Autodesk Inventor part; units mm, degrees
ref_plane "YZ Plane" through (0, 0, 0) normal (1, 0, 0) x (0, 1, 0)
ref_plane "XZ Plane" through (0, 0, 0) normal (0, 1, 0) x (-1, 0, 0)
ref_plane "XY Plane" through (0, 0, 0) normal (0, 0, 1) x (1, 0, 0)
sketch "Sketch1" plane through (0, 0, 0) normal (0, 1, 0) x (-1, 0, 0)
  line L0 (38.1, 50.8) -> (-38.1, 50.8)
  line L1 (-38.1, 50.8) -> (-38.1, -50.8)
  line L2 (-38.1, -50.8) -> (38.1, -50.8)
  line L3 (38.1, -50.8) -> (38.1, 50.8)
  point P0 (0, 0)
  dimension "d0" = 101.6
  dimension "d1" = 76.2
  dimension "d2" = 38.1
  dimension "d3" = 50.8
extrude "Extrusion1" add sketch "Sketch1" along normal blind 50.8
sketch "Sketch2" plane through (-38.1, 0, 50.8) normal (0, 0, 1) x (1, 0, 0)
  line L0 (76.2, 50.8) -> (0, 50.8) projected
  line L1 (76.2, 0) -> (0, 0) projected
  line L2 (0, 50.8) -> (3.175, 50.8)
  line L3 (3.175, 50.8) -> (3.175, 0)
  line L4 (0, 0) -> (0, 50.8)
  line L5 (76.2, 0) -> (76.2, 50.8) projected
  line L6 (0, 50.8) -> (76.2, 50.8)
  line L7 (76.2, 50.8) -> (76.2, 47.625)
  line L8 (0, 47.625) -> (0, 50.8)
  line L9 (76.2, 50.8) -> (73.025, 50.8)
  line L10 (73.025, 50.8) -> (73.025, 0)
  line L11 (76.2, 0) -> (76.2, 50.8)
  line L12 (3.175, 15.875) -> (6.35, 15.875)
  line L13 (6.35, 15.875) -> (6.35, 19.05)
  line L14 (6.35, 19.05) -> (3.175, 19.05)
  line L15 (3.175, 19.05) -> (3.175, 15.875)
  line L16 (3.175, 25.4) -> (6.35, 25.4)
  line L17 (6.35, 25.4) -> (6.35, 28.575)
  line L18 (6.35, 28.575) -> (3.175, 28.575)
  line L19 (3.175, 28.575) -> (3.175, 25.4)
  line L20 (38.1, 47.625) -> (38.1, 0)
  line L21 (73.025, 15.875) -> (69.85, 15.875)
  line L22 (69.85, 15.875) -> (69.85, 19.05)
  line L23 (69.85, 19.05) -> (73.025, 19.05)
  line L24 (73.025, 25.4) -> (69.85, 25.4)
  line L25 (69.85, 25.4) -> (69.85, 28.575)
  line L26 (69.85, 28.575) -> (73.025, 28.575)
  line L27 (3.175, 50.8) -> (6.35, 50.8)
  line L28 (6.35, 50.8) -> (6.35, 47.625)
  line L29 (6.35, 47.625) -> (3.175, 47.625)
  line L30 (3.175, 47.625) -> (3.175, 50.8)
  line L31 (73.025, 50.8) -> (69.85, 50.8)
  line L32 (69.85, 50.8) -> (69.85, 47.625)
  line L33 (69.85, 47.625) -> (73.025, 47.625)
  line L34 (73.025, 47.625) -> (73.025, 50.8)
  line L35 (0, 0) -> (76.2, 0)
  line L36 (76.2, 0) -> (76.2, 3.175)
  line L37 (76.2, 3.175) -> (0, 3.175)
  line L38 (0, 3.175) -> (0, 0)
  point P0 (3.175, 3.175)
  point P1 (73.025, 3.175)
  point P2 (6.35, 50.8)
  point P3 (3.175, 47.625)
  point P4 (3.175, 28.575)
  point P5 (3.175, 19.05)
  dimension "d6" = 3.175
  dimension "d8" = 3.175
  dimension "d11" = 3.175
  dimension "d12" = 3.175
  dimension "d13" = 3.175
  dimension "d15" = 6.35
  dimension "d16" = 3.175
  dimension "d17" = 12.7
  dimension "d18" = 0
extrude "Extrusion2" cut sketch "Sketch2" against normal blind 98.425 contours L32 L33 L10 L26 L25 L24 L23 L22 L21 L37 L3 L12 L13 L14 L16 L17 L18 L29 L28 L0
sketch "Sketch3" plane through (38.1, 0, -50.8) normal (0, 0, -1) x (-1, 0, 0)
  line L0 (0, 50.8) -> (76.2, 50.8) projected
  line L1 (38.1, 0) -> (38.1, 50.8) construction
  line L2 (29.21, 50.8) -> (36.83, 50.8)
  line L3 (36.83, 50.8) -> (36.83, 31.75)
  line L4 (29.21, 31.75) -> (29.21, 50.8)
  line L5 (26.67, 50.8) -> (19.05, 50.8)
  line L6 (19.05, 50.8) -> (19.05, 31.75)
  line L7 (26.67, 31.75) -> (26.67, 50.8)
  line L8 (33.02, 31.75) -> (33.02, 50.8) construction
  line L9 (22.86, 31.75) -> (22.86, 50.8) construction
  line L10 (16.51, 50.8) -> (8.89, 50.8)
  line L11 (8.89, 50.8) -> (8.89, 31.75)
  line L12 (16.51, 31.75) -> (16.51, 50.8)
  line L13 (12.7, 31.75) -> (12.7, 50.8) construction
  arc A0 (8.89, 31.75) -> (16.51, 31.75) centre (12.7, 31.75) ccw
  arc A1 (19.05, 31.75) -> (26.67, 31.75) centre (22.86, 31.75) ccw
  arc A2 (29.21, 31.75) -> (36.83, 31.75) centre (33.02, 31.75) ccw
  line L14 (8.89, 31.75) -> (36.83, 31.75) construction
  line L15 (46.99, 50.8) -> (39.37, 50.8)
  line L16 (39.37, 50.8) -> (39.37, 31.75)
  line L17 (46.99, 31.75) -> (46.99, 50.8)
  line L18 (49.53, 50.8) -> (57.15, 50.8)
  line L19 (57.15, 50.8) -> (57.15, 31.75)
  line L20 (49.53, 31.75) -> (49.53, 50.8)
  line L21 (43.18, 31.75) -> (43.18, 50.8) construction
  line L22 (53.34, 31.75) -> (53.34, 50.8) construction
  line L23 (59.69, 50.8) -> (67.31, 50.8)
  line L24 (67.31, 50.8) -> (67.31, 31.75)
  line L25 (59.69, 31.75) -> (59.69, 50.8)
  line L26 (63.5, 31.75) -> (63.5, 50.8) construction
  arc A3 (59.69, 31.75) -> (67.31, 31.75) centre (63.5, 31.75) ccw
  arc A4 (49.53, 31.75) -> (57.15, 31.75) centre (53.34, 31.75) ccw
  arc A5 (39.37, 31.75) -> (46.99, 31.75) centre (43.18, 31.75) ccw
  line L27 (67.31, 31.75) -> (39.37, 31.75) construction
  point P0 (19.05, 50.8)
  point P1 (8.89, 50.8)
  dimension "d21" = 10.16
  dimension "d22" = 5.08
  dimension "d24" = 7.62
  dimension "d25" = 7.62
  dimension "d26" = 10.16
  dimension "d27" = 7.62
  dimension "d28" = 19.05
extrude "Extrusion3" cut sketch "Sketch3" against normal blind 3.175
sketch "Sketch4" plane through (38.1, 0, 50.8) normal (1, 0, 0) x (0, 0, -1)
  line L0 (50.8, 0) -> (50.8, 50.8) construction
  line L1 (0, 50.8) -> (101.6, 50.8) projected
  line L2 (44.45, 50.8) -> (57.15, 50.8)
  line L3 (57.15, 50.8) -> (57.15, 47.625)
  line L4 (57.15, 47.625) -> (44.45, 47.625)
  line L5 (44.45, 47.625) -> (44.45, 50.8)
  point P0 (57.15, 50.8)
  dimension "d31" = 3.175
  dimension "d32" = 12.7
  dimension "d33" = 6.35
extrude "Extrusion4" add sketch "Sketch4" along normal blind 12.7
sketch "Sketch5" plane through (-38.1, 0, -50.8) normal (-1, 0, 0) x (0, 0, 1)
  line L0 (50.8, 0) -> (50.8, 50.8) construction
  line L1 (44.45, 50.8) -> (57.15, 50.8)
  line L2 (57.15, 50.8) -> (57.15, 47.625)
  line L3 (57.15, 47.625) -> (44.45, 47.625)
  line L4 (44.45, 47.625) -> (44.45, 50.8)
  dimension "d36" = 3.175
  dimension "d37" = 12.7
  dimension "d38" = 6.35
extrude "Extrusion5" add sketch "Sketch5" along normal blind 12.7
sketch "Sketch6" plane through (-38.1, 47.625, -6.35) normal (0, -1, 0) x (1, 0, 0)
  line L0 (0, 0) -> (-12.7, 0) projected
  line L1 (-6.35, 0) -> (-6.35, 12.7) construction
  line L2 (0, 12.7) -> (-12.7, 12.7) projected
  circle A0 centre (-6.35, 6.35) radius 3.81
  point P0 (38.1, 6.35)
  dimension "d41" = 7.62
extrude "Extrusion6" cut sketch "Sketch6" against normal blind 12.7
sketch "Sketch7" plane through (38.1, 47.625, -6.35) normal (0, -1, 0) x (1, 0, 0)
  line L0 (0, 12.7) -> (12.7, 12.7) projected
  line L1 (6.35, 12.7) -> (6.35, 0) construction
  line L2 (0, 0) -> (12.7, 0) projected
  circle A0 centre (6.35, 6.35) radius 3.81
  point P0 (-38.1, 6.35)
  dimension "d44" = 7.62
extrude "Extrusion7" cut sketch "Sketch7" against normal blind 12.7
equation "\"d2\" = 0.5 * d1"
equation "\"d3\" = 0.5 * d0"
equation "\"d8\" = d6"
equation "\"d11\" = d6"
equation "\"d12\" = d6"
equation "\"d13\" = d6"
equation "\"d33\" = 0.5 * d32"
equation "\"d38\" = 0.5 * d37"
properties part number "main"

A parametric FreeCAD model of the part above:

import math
import FreeCAD as App
import Part
import Sketcher

V = App.Vector
Q = App.Units.Quantity


def add_polygon(sketch, points):
    """Adds a closed chain of lines whose ends are joined by coincident constraints."""
    first, n = sketch.GeometryCount, len(points)
    for a, b in zip(points, points[1:] + points[:1]):
        sketch.addGeometry(Part.LineSegment(App.Vector(*a, 0), App.Vector(*b, 0)), False)
    for i in range(n):
        sketch.addConstraint(Sketcher.Constraint("Coincident", first + i, 2, first + (i + 1) % n, 1))

doc = App.newDocument("Part")
params = doc.addObject("Spreadsheet::Sheet", "Params")
for row, (alias, value) in enumerate([
    ("sketch1_width", "3 in"),
    ("sketch1_height", "4 in"),
    ("pad1_length", "2 in"),
    ("sketch2_height", "0.5 in"),
    ("sketch2_height2", "0.25 in"),
    ("sketch2_width", "2.5 in"),
    ("pocket1_length", "3.875 in"),
    ("sketch3_radius", "0.15 in"),
    ("sketch3_height", "0.75 in"),
    ("pocket2_length", "0.125 in"),
    ("sketch4_height", "0.5 in"),
    ("sketch4_width", "0.125 in"),
    ("pad2_length", "0.5 in"),
    ("sketch5_height", "0.5 in"),
    ("sketch5_width", "0.125 in"),
    ("pad3_length", "0.5 in"),
    ("sketch6_diameter", "0.3 in"),
    ("pocket3_length", "0.5 in"),
    ("sketch7_diameter", "0.3 in"),
    ("pocket4_length", "0.5 in"),
], start=1):
    params.set(f"A{row}", alias)
    params.set(f"B{row}", "=" + value)
    params.setAlias(f"B{row}", alias)

body = doc.addObject("PartDesign::Body", "Body")

sketch1 = body.newObject("Sketcher::SketchObject", "Sketch")
sketch1.AttachmentSupport = (doc.getObject("XZ_Plane"), [""])
sketch1.MapMode = "FlatFace"
add_polygon(sketch1, [(-38, -51), (-38, 51), (38, 51), (38, -51)])
sketch1.addConstraint(Sketcher.Constraint("Vertical", 0))
sketch1.addConstraint(Sketcher.Constraint("Horizontal", 1))
sketch1.addConstraint(Sketcher.Constraint("Vertical", 2))
sketch1.addConstraint(Sketcher.Constraint("Horizontal", 3))
sketch1.addConstraint(Sketcher.Constraint("Symmetric", 0, 2, 2, 2, -1, 1))
sketch1.addConstraint(Sketcher.Constraint("DistanceX", 1, 1, 1, 2, Q("3 in")))
sketch1.addConstraint(Sketcher.Constraint("DistanceY", 0, 1, 0, 2, Q("4 in")))
sketch1.setExpression("Constraints[9]", "Params.sketch1_width")
sketch1.setExpression("Constraints[10]", "Params.sketch1_height")
pad1 = body.newObject("PartDesign::Pad", "Pad")
pad1.Profile = sketch1
pad1.setExpression("Length", "Params.pad1_length")
pad1.Reversed = True

sketch2 = body.newObject("Sketcher::SketchObject", "Sketch001")
sketch2.AttachmentSupport = (doc.getObject("XY_Plane"), [""])
sketch2.MapMode = "FlatFace"
sketch2.AttachmentOffset = App.Placement(V(0, 0, 2 * 25.4), App.Rotation())
add_polygon(sketch2, [(31.8, 47.6), (31.8, 50.8), (-31.8, 50.8), (-31.8, 47.6), (-34.9, 47.6), (-34.9, 28.6), (-31.8, 28.6), (-31.8, 25.4), (-34.9, 25.4), (-34.9, 19.1), (-31.8, 19.1), (-31.8, 15.9), (-34.9, 15.9), (-34.9, 3.2), (34.9, 3.2), (34.9, 15.9), (31.8, 15.9), (31.8, 19.1), (34.9, 19.1), (34.9, 25.4), (31.8, 25.4), (31.8, 28.6), (34.9, 28.6), (34.9, 47.6)])
sketch2.addConstraint(Sketcher.Constraint("Vertical", 0))
sketch2.addConstraint(Sketcher.Constraint("Horizontal", 1))
sketch2.addConstraint(Sketcher.Constraint("Vertical", 2))
sketch2.addConstraint(Sketcher.Constraint("Horizontal", 3))
sketch2.addConstraint(Sketcher.Constraint("Vertical", 4))
sketch2.addConstraint(Sketcher.Constraint("Horizontal", 5))
sketch2.addConstraint(Sketcher.Constraint("Vertical", 6))
sketch2.addConstraint(Sketcher.Constraint("Horizontal", 7))
sketch2.addConstraint(Sketcher.Constraint("Vertical", 8))
sketch2.addConstraint(Sketcher.Constraint("Horizontal", 9))
sketch2.addConstraint(Sketcher.Constraint("Vertical", 10))
sketch2.addConstraint(Sketcher.Constraint("Horizontal", 11))
sketch2.addConstraint(Sketcher.Constraint("Vertical", 12))
sketch2.addConstraint(Sketcher.Constraint("Horizontal", 13))
sketch2.addConstraint(Sketcher.Constraint("Vertical", 14))
sketch2.addConstraint(Sketcher.Constraint("Horizontal", 15))
sketch2.addConstraint(Sketcher.Constraint("Vertical", 16))
sketch2.addConstraint(Sketcher.Constraint("Horizontal", 17))
sketch2.addConstraint(Sketcher.Constraint("Vertical", 18))
sketch2.addConstraint(Sketcher.Constraint("Horizontal", 19))
sketch2.addConstraint(Sketcher.Constraint("Vertical", 20))
sketch2.addConstraint(Sketcher.Constraint("Horizontal", 21))
sketch2.addConstraint(Sketcher.Constraint("Vertical", 22))
sketch2.addConstraint(Sketcher.Constraint("Horizontal", 23))
sketch2.addConstraint(Sketcher.Constraint("Symmetric", 11, 2, 14, 2, -2))
sketch2.addConstraint(Sketcher.Constraint("Symmetric", 9, 2, 16, 2, -2))
sketch2.addConstraint(Sketcher.Constraint("Symmetric", 7, 2, 18, 2, -2))
sketch2.addConstraint(Sketcher.Constraint("Symmetric", 5, 2, 20, 2, -2))
sketch2.addConstraint(Sketcher.Constraint("Symmetric", 3, 2, 22, 2, -2))
sketch2.addConstraint(Sketcher.Constraint("Vertical", 2, 2, 5, 2))
sketch2.addConstraint(Sketcher.Constraint("Vertical", 4, 2, 7, 2))
sketch2.addConstraint(Sketcher.Constraint("Vertical", 6, 2, 9, 2))
sketch2.addConstraint(Sketcher.Constraint("Vertical", 8, 2, 11, 2))
sketch2.addConstraint(Sketcher.Constraint("Vertical", 0, 2, 15, 2))
sketch2.addConstraint(Sketcher.Constraint("Equal", 23, 0))
sketch2.addConstraint(Sketcher.Constraint("Equal", 2, 6))
sketch2.addConstraint(Sketcher.Constraint("Equal", 6, 10))
sketch2.addConstraint(Sketcher.Constraint("DistanceY", 12, 2, 12, 1, Q("0.5 in")))
sketch2.addConstraint(Sketcher.Constraint("DistanceY", 8, 2, 8, 1, Q("0.25 in")))
sketch2.addConstraint(Sketcher.Constraint("DistanceY", 10, 2, 5, 2, Q("0.5 in")))
sketch2.addConstraint(Sketcher.Constraint("DistanceX", 1, 2, 1, 1, Q("2.5 in")))
sketch2.addConstraint(Sketcher.Constraint("DistanceY", -1, 1, 12, 2, Q("0.125 in")))
sketch2.addConstraint(Sketcher.Constraint("DistanceY", -1, 1, 0, 2, Q("2 in")))
sketch2.setExpression("Constraints[61]", "Params.sketch2_height")
sketch2.setExpression("Constraints[62]", "Params.sketch2_height2")
sketch2.setExpression("Constraints[64]", "Params.sketch2_width")
pocket1 = body.newObject("PartDesign::Pocket", "Pocket")
pocket1.Profile = sketch2
pocket1.setExpression("Length", "Params.pocket1_length")

sketch3 = body.newObject("Sketcher::SketchObject", "Sketch002")
sketch3.AttachmentSupport = (doc.getObject("XY_Plane"), [""])
sketch3.MapMode = "FlatFace"
sketch3.AttachmentOffset = App.Placement(V(0, 0, -2 * 25.4), App.Rotation())
sketch3.addGeometry(Part.LineSegment(V(-29.2, 50.8, 0), V(-21.6, 50.8, 0)), False)
sketch3.addGeometry(Part.LineSegment(V(-21.6, 50.8, 0), V(-21.6, 31.8, 0)), False)
sketch3.addGeometry(Part.ArcOfCircle(Part.Circle(V(-25.4, 31.8, 0), V(0, 0, 1), 3.8), math.radians(180), math.radians(360)), False)
sketch3.addGeometry(Part.LineSegment(V(-29.2, 31.8, 0), V(-29.2, 50.8, 0)), False)
sketch3.addGeometry(Part.LineSegment(V(-19.1, 50.8, 0), V(-11.4, 50.8, 0)), False)
sketch3.addGeometry(Part.LineSegment(V(-11.4, 50.8, 0), V(-11.4, 31.8, 0)), False)
sketch3.addGeometry(Part.ArcOfCircle(Part.Circle(V(-15.2, 31.8, 0), V(0, 0, 1), 3.8), math.radians(180), math.radians(360)), False)
sketch3.addGeometry(Part.LineSegment(V(-19.1, 31.8, 0), V(-19.1, 50.8, 0)), False)
sketch3.addGeometry(Part.LineSegment(V(-8.9, 50.8, 0), V(-1.3, 50.8, 0)), False)
sketch3.addGeometry(Part.LineSegment(V(-1.3, 50.8, 0), V(-1.3, 31.8, 0)), False)
sketch3.addGeometry(Part.ArcOfCircle(Part.Circle(V(-5.1, 31.8, 0), V(0, 0, 1), 3.8), math.radians(180), math.radians(360)), False)
sketch3.addGeometry(Part.LineSegment(V(-8.9, 31.8, 0), V(-8.9, 50.8, 0)), False)
sketch3.addGeometry(Part.LineSegment(V(1.3, 50.8, 0), V(8.9, 50.8, 0)), False)
sketch3.addGeometry(Part.LineSegment(V(8.9, 50.8, 0), V(8.9, 31.8, 0)), False)
sketch3.addGeometry(Part.ArcOfCircle(Part.Circle(V(5.1, 31.8, 0), V(0, 0, 1), 3.8), math.radians(180), math.radians(360)), False)
sketch3.addGeometry(Part.LineSegment(V(1.3, 31.8, 0), V(1.3, 50.8, 0)), False)
sketch3.addGeometry(Part.LineSegment(V(11.4, 50.8, 0), V(19.1, 50.8, 0)), False)
sketch3.addGeometry(Part.LineSegment(V(19.1, 50.8, 0), V(19.1, 31.8, 0)), False)
sketch3.addGeometry(Part.ArcOfCircle(Part.Circle(V(15.2, 31.8, 0), V(0, 0, 1), 3.8), math.radians(180), math.radians(360)), False)
sketch3.addGeometry(Part.LineSegment(V(11.4, 31.8, 0), V(11.4, 50.8, 0)), False)
sketch3.addGeometry(Part.LineSegment(V(21.6, 50.8, 0), V(29.2, 50.8, 0)), False)
sketch3.addGeometry(Part.LineSegment(V(29.2, 50.8, 0), V(29.2, 31.8, 0)), False)
sketch3.addGeometry(Part.ArcOfCircle(Part.Circle(V(25.4, 31.8, 0), V(0, 0, 1), 3.8), math.radians(180), math.radians(360)), False)
sketch3.addGeometry(Part.LineSegment(V(21.6, 31.8, 0), V(21.6, 50.8, 0)), False)
sketch3.addConstraint(Sketcher.Constraint("Coincident", 0, 2, 1, 1))
sketch3.addConstraint(Sketcher.Constraint("Tangent", 1, 2, 2, 2))
sketch3.addConstraint(Sketcher.Constraint("Tangent", 2, 1, 3, 1))
sketch3.addConstraint(Sketcher.Constraint("Coincident", 3, 2, 0, 1))
sketch3.addConstraint(Sketcher.Constraint("Coincident", 4, 2, 5, 1))
sketch3.addConstraint(Sketcher.Constraint("Tangent", 5, 2, 6, 2))
sketch3.addConstraint(Sketcher.Constraint("Tangent", 6, 1, 7, 1))
sketch3.addConstraint(Sketcher.Constraint("Coincident", 7, 2, 4, 1))
sketch3.addConstraint(Sketcher.Constraint("Coincident", 8, 2, 9, 1))
sketch3.addConstraint(Sketcher.Constraint("Tangent", 9, 2, 10, 2))
sketch3.addConstraint(Sketcher.Constraint("Tangent", 10, 1, 11, 1))
sketch3.addConstraint(Sketcher.Constraint("Coincident", 11, 2, 8, 1))
sketch3.addConstraint(Sketcher.Constraint("Coincident", 12, 2, 13, 1))
sketch3.addConstraint(Sketcher.Constraint("Tangent", 13, 2, 14, 2))
sketch3.addConstraint(Sketcher.Constraint("Tangent", 14, 1, 15, 1))
sketch3.addConstraint(Sketcher.Constraint("Coincident", 15, 2, 12, 1))
sketch3.addConstraint(Sketcher.Constraint("Coincident", 16, 2, 17, 1))
sketch3.addConstraint(Sketcher.Constraint("Tangent", 17, 2, 18, 2))
sketch3.addConstraint(Sketcher.Constraint("Tangent", 18, 1, 19, 1))
sketch3.addConstraint(Sketcher.Constraint("Coincident", 19, 2, 16, 1))
sketch3.addConstraint(Sketcher.Constraint("Coincident", 20, 2, 21, 1))
sketch3.addConstraint(Sketcher.Constraint("Tangent", 21, 2, 22, 2))
sketch3.addConstraint(Sketcher.Constraint("Tangent", 22, 1, 23, 1))
sketch3.addConstraint(Sketcher.Constraint("Coincident", 23, 2, 20, 1))
sketch3.addConstraint(Sketcher.Constraint("Horizontal", 0))
sketch3.addConstraint(Sketcher.Constraint("Vertical", 1))
sketch3.addConstraint(Sketcher.Constraint("Vertical", 3))
sketch3.addConstraint(Sketcher.Constraint("Horizontal", 4))
sketch3.addConstraint(Sketcher.Constraint("Vertical", 5))
sketch3.addConstraint(Sketcher.Constraint("Vertical", 7))
sketch3.addConstraint(Sketcher.Constraint("Horizontal", 8))
sketch3.addConstraint(Sketcher.Constraint("Vertical", 9))
sketch3.addConstraint(Sketcher.Constraint("Vertical", 11))
sketch3.addConstraint(Sketcher.Constraint("Horizontal", 12))
sketch3.addConstraint(Sketcher.Constraint("Vertical", 13))
sketch3.addConstraint(Sketcher.Constraint("Vertical", 15))
sketch3.addConstraint(Sketcher.Constraint("Horizontal", 16))
sketch3.addConstraint(Sketcher.Constraint("Vertical", 17))
sketch3.addConstraint(Sketcher.Constraint("Vertical", 19))
sketch3.addConstraint(Sketcher.Constraint("Horizontal", 20))
sketch3.addConstraint(Sketcher.Constraint("Vertical", 21))
sketch3.addConstraint(Sketcher.Constraint("Vertical", 23))
sketch3.addConstraint(Sketcher.Constraint("Equal", 2, 6))
sketch3.addConstraint(Sketcher.Constraint("Equal", 6, 10))
sketch3.addConstraint(Sketcher.Constraint("Equal", 10, 14))
sketch3.addConstraint(Sketcher.Constraint("Equal", 14, 18))
sketch3.addConstraint(Sketcher.Constraint("Equal", 18, 22))
sketch3.addConstraint(Sketcher.Constraint("Symmetric", 10, 3, 14, 3, -2))
sketch3.addConstraint(Sketcher.Constraint("Symmetric", 6, 3, 18, 3, -2))
sketch3.addConstraint(Sketcher.Constraint("Symmetric", 2, 3, 22, 3, -2))
sketch3.addConstraint(Sketcher.Constraint("Horizontal", 2, 3, 6, 3))
sketch3.addConstraint(Sketcher.Constraint("Horizontal", 6, 3, 10, 3))
sketch3.addConstraint(Sketcher.Constraint("Horizontal", 3, 2, 4, 2))
sketch3.addConstraint(Sketcher.Constraint("Horizontal", 7, 2, 8, 2))
sketch3.addConstraint(Sketcher.Constraint("Horizontal", 11, 2, 12, 2))
sketch3.addConstraint(Sketcher.Constraint("Horizontal", 15, 2, 16, 2))
sketch3.addConstraint(Sketcher.Constraint("Horizontal", 19, 2, 20, 2))
sketch3.addConstraint(Sketcher.Constraint("Radius", 2, Q("0.15 in")))
sketch3.addConstraint(Sketcher.Constraint("DistanceY", 1, 2, 1, 1, Q("0.75 in")))
sketch3.addConstraint(Sketcher.Constraint("DistanceX", 10, 3, -1, 1, Q("0.2 in")))
sketch3.addConstraint(Sketcher.Constraint("DistanceX", 2, 3, 6, 3, Q("0.4 in")))
sketch3.addConstraint(Sketcher.Constraint("DistanceX", 6, 3, 10, 3, Q("0.4 in")))
sketch3.addConstraint(Sketcher.Constraint("DistanceY", -1, 1, 0, 2, Q("2 in")))
sketch3.setExpression("Constraints[57]", "Params.sketch3_radius")
sketch3.setExpression("Constraints[58]", "Params.sketch3_height")
pocket2 = body.newObject("PartDesign::Pocket", "Pocket001")
pocket2.Profile = sketch3
pocket2.setExpression("Length", "Params.pocket2_length")
pocket2.Reversed = True

sketch4 = body.newObject("Sketcher::SketchObject", "Sketch003")
sketch4.AttachmentSupport = (doc.getObject("YZ_Plane"), [""])
sketch4.MapMode = "FlatFace"
sketch4.AttachmentOffset = App.Placement(V(0, 0, 1.5 * 25.4), App.Rotation())
add_polygon(sketch4, [(50.8, -6.3), (50.8, 6.3), (47.6, 6.3), (47.6, -6.3)])
sketch4.addConstraint(Sketcher.Constraint("Vertical", 0))
sketch4.addConstraint(Sketcher.Constraint("Horizontal", 1))
sketch4.addConstraint(Sketcher.Constraint("Vertical", 2))
sketch4.addConstraint(Sketcher.Constraint("Horizontal", 3))
sketch4.addConstraint(Sketcher.Constraint("DistanceY", 0, 1, 0, 2, Q("0.5 in")))
sketch4.addConstraint(Sketcher.Constraint("DistanceX", 1, 2, 1, 1, Q("0.125 in")))
sketch4.addConstraint(Sketcher.Constraint("DistanceY", -1, 1, 0, 2, Q("0.25 in")))
sketch4.addConstraint(Sketcher.Constraint("DistanceX", -1, 1, 0, 2, Q("2 in")))
sketch4.setExpression("Constraints[8]", "Params.sketch4_height")
sketch4.setExpression("Constraints[9]", "Params.sketch4_width")
pad2 = body.newObject("PartDesign::Pad", "Pad001")
pad2.Profile = sketch4
pad2.setExpression("Length", "Params.pad2_length")

sketch5 = body.newObject("Sketcher::SketchObject", "Sketch004")
sketch5.AttachmentSupport = (doc.getObject("YZ_Plane"), [""])
sketch5.MapMode = "FlatFace"
sketch5.AttachmentOffset = App.Placement(V(0, 0, -1.5 * 25.4), App.Rotation())
add_polygon(sketch5, [(50.8, 6.3), (50.8, -6.3), (47.6, -6.3), (47.6, 6.3)])
sketch5.addConstraint(Sketcher.Constraint("Vertical", 0))
sketch5.addConstraint(Sketcher.Constraint("Horizontal", 1))
sketch5.addConstraint(Sketcher.Constraint("Vertical", 2))
sketch5.addConstraint(Sketcher.Constraint("Horizontal", 3))
sketch5.addConstraint(Sketcher.Constraint("DistanceY", 0, 2, 0, 1, Q("0.5 in")))
sketch5.addConstraint(Sketcher.Constraint("DistanceX", 1, 2, 1, 1, Q("0.125 in")))
sketch5.addConstraint(Sketcher.Constraint("DistanceY", 0, 2, -1, 1, Q("0.25 in")))
sketch5.addConstraint(Sketcher.Constraint("DistanceX", -1, 1, 0, 2, Q("2 in")))
sketch5.setExpression("Constraints[8]", "Params.sketch5_height")
sketch5.setExpression("Constraints[9]", "Params.sketch5_width")
pad3 = body.newObject("PartDesign::Pad", "Pad002")
pad3.Profile = sketch5
pad3.setExpression("Length", "Params.pad3_length")
pad3.Reversed = True

sketch6 = body.newObject("Sketcher::SketchObject", "Sketch005")
sketch6.AttachmentSupport = (doc.getObject("XZ_Plane"), [""])
sketch6.MapMode = "FlatFace"
sketch6.AttachmentOffset = App.Placement(V(0, 0, -1.875 * 25.4), App.Rotation())
sketch6.addGeometry(Part.Circle(V(-44.5, 0, 0), V(0, 0, 1), 3.8), False)
sketch6.addConstraint(Sketcher.Constraint("PointOnObject", 0, 3, -1))
sketch6.addConstraint(Sketcher.Constraint("Diameter", 0, Q("0.3 in")))
sketch6.addConstraint(Sketcher.Constraint("DistanceX", 0, 3, -1, 1, Q("1.75 in")))
sketch6.setExpression("Constraints[1]", "Params.sketch6_diameter")
pocket3 = body.newObject("PartDesign::Pocket", "Pocket002")
pocket3.Profile = sketch6
pocket3.setExpression("Length", "Params.pocket3_length")

sketch7 = body.newObject("Sketcher::SketchObject", "Sketch006")
sketch7.AttachmentSupport = (doc.getObject("XZ_Plane"), [""])
sketch7.MapMode = "FlatFace"
sketch7.AttachmentOffset = App.Placement(V(0, 0, -1.875 * 25.4), App.Rotation())
sketch7.addGeometry(Part.Circle(V(44.5, 0, 0), V(0, 0, 1), 3.8), False)
sketch7.addConstraint(Sketcher.Constraint("PointOnObject", 0, 3, -1))
sketch7.addConstraint(Sketcher.Constraint("Diameter", 0, Q("0.3 in")))
sketch7.addConstraint(Sketcher.Constraint("DistanceX", -1, 1, 0, 3, Q("1.75 in")))
sketch7.setExpression("Constraints[1]", "Params.sketch7_diameter")
pocket4 = body.newObject("PartDesign::Pocket", "Pocket003")
pocket4.Profile = sketch7
pocket4.setExpression("Length", "Params.pocket4_length")

doc.recompute()
